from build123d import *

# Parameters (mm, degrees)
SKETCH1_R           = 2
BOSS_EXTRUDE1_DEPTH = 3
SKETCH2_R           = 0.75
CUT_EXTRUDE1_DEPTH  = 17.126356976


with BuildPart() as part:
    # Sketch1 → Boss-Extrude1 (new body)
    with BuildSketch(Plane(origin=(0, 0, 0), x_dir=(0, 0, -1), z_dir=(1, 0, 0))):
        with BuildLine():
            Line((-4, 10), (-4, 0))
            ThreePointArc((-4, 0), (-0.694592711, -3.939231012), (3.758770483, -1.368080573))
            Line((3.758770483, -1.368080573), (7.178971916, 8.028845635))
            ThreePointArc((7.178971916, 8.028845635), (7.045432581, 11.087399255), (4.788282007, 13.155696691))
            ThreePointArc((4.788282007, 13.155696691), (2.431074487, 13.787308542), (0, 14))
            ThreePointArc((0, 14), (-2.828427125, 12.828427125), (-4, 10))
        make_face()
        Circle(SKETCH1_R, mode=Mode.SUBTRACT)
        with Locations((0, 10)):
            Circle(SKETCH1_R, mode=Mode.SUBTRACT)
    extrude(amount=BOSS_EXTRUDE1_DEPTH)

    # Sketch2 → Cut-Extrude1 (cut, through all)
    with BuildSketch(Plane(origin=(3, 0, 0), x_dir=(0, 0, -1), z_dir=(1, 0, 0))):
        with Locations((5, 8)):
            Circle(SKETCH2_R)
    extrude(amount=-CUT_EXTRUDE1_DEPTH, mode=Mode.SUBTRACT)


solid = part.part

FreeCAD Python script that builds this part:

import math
import FreeCAD as App
import Part
import Sketcher
Q = App.Units.Quantity

doc = App.newDocument("Part")
body = doc.addObject("PartDesign::Body", "Body")

# Sketch on YZ plane
sketch1 = body.newObject("Sketcher::SketchObject", "Sketch")
sketch1.AttachmentSupport = (doc.getObject("YZ_Plane"), [""])
sketch1.MapMode = "FlatFace"
sketch1.addGeometry([
    Part.LineSegment(App.Vector(10, 4, 0), App.Vector(0, 4, 0)),  # 0
    Part.ArcOfCircle(Part.Circle(App.Vector(0, 0, 0), App.Vector(0, 0, 1), 4), math.radians(90), math.radians(250)),  # 1
    Part.LineSegment(App.Vector(-1.4, -3.8, 0), App.Vector(8, -7.2, 0)),  # 2
    Part.ArcOfCircle(Part.Circle(App.Vector(9.4, -3.4, 0), App.Vector(0, 0, 1), 4), math.radians(-110), math.radians(-20)),  # 3
    Part.ArcOfCircle(Part.Circle(App.Vector(0, 0, 0), App.Vector(0, 0, 1), 14), math.radians(-20), math.radians(0)),  # 4
    Part.ArcOfCircle(Part.Circle(App.Vector(10, 0, 0), App.Vector(0, 0, 1), 4), math.radians(0), math.radians(90)),  # 5
    Part.Circle(App.Vector(0, 0, 0), App.Vector(0, 0, 1), 2),  # 6
    Part.Circle(App.Vector(10, 0, 0), App.Vector(0, 0, 1), 2),  # 7
], False)
sketch1.addConstraint([
    Sketcher.Constraint("Tangent", 0, 2, 1, 1),
    Sketcher.Constraint("Tangent", 1, 2, 2, 1),
    Sketcher.Constraint("Tangent", 2, 2, 3, 1),
    Sketcher.Constraint("Tangent", 3, 2, 4, 1),
    Sketcher.Constraint("Tangent", 4, 2, 5, 1),
    Sketcher.Constraint("Tangent", 5, 2, 0, 1),
    Sketcher.Constraint("Horizontal", 0),
    Sketcher.Constraint("Coincident", 1, 3, -1, 1),
    Sketcher.Constraint("Coincident", 4, 3, -1, 1),
    Sketcher.Constraint("Coincident", 6, 3, -1, 1),
    Sketcher.Constraint("Coincident", 7, 3, 5, 3),
    Sketcher.Constraint("Equal", 1, 3),
    Sketcher.Constraint("Equal", 3, 5),
    Sketcher.Constraint("Equal", 6, 7),
    Sketcher.Constraint("Diameter", 6, Q("4 mm")),
    Sketcher.Constraint("Radius", 1, Q("4 mm")),
    Sketcher.Constraint("Radius", 4, Q("14 mm")),
    Sketcher.Constraint("Angle", 2, Q("-20 deg")),
])
pad1 = body.newObject("PartDesign::Pad", "Pad")
pad1.Profile = sketch1
pad1.Length = 3

# Sketch on YZ plane
sketch2 = body.newObject("Sketcher::SketchObject", "Sketch001")
sketch2.AttachmentSupport = (doc.getObject("YZ_Plane"), [""])
sketch2.MapMode = "FlatFace"
sketch2.AttachmentOffset = App.Placement(App.Vector(0, 0, 3), App.Rotation())
sketch2.addGeometry(Part.Circle(App.Vector(8, -5, 0), App.Vector(0, 0, 1), 0.8), False)
sketch2.addConstraint([
    Sketcher.Constraint("Diameter", 0, Q("1.5 mm")),
    Sketcher.Constraint("DistanceX", -1, 1, 0, 3, Q("8 mm")),
    Sketcher.Constraint("DistanceY", 0, 3, -1, 1, Q("5 mm")),
])
pocket1 = body.newObject("PartDesign::Pocket", "Pocket")
pocket1.Profile = sketch2
pocket1.Type = "ThroughAll"

doc.recompute()
